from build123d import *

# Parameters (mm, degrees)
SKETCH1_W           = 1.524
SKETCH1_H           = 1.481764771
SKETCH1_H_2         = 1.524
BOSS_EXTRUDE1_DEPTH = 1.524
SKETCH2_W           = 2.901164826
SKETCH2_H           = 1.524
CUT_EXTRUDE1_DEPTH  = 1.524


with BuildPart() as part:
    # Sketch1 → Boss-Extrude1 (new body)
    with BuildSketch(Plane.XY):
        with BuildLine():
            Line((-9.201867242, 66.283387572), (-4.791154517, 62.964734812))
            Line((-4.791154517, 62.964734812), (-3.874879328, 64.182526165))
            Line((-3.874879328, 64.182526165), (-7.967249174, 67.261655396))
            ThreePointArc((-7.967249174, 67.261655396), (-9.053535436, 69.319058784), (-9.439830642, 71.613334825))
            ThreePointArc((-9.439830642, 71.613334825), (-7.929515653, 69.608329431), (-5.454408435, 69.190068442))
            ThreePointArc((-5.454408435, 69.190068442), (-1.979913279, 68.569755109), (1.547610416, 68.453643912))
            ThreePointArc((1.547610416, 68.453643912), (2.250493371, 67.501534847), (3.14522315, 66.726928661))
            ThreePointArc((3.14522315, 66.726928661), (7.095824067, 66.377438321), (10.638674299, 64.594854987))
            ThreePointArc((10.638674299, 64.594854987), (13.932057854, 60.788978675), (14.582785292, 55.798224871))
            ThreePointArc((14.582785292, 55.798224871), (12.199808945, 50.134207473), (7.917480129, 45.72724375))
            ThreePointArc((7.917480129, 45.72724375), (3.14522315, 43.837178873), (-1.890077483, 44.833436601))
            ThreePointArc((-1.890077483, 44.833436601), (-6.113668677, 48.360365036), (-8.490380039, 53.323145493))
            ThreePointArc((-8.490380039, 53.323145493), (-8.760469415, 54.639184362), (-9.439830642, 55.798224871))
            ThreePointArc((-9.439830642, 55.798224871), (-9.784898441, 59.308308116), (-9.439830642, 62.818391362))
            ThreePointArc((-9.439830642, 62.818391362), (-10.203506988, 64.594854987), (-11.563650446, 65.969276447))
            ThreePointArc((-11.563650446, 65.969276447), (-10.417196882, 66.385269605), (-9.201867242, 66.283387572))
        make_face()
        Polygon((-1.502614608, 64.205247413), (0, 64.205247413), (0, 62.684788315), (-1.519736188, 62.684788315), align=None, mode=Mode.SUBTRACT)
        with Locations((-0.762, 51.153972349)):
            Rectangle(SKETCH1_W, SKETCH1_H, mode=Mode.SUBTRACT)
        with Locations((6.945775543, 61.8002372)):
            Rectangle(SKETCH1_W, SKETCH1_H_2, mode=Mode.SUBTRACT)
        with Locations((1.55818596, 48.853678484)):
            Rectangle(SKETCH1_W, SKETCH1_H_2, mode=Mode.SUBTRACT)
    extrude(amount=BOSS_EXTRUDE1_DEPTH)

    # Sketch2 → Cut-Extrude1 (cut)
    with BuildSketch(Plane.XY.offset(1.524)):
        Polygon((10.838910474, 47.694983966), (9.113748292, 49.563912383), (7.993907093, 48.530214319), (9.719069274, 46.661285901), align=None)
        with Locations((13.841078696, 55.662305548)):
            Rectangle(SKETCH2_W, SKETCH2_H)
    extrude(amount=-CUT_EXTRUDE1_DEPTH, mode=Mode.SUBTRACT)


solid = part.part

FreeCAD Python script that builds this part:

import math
import FreeCAD as App
import Part
import Sketcher

V = App.Vector
Q = App.Units.Quantity

doc = App.newDocument("Part")
body = doc.addObject("PartDesign::Body", "Body")

# Sketch on XY plane
sketch1 = body.newObject("Sketcher::SketchObject", "Sketch")
sketch1.AttachmentSupport = (doc.getObject("XY_Plane"), [""])
sketch1.MapMode = "FlatFace"
sketch1.addGeometry(Part.LineSegment(V(-4.8, 63, 0), V(-9.2, 66.3, 0)), False)
sketch1.addGeometry(Part.ArcOfCircle(Part.Circle(V(-10, 63.6, 0), V(0, 0, 1), 2.8), math.radians(73), math.radians(122)), False)
sketch1.addGeometry(Part.ArcOfCircle(Part.Circle(V(-14.5, 61.7, 0), V(0, 0, 1), 5.2), math.radians(13), math.radians(55)), False)
sketch1.addGeometry(Part.ArcOfCircle(Part.Circle(V(8.2, 59.3, 0), V(0, 0, 1), 18), math.radians(169), math.radians(191)), False)
sketch1.addGeometry(Part.ArcOfCircle(Part.Circle(V(-12.6, 53.2, 0), V(0, 0, 1), 4.1), math.radians(2), math.radians(40)), False)
sketch1.addGeometry(Part.ArcOfCircle(Part.Circle(V(4.1, 56.3, 0), V(0, 0, 1), 12.9), math.radians(-167), math.radians(-118)), False)
sketch1.addGeometry(Part.ArcOfCircle(Part.Circle(V(2.3, 52.9, 0), V(0, 0, 1), 9.1), math.radians(-118), math.radians(-52)), False)
sketch1.addGeometry(Part.ArcOfCircle(Part.Circle(V(-1.6, 59.3, 0), V(0, 0, 1), 16.6), math.radians(-55), math.radians(-12)), False)
sketch1.addGeometry(Part.ArcOfCircle(Part.Circle(V(6, 57.2, 0), V(0, 0, 1), 8.7), math.radians(-9), math.radians(58)), False)
sketch1.addGeometry(Part.ArcOfCircle(Part.Circle(V(4.2, 56.2, 0), V(0, 0, 1), 10.6), math.radians(52), math.radians(96)), False)
sketch1.addGeometry(Part.ArcOfCircle(Part.Circle(V(6.2, 71.1, 0), V(0, 0, 1), 5.4), math.radians(-150), math.radians(-125)), False)
sketch1.addGeometry(Part.ArcOfCircle(Part.Circle(V(0.6, 93, 0), V(0, 0, 1), 24.6), math.radians(-104.24), math.radians(-87.77)), False)
sketch1.addGeometry(Part.ArcOfCircle(Part.Circle(V(-6.2, 72.5, 0), V(0, 0, 1), 3.4), math.radians(-165), math.radians(-78)), False)
sketch1.addGeometry(Part.ArcOfCircle(Part.Circle(V(-2.1, 71.7, 0), V(0, 0, 1), 7.3), math.radians(-180), math.radians(-143)), False)
sketch1.addGeometry(Part.LineSegment(V(-8, 67.3, 0), V(-3.9, 64.2, 0)), False)
sketch1.addGeometry(Part.LineSegment(V(-3.9, 64.2, 0), V(-4.8, 63, 0)), False)
sketch1.addGeometry(Part.LineSegment(V(0.8, 48.1, 0), V(0.8, 49.6, 0)), False)
sketch1.addGeometry(Part.LineSegment(V(0.8, 49.6, 0), V(2.3, 49.6, 0)), False)
sketch1.addGeometry(Part.LineSegment(V(2.3, 49.6, 0), V(2.3, 48.1, 0)), False)
sketch1.addGeometry(Part.LineSegment(V(2.3, 48.1, 0), V(0.8, 48.1, 0)), False)
sketch1.addGeometry(Part.LineSegment(V(-1.5, 50.4, 0), V(-1.5, 51.9, 0)), False)
sketch1.addGeometry(Part.LineSegment(V(-1.5, 51.9, 0), V(0, 51.9, 0)), False)
sketch1.addGeometry(Part.LineSegment(V(0, 51.9, 0), V(0, 50.4, 0)), False)
sketch1.addGeometry(Part.LineSegment(V(0, 50.4, 0), V(-1.5, 50.4, 0)), False)
sketch1.addGeometry(Part.LineSegment(V(6.2, 61, 0), V(6.2, 62.6, 0)), False)
sketch1.addGeometry(Part.LineSegment(V(6.2, 62.6, 0), V(7.7, 62.6, 0)), False)
sketch1.addGeometry(Part.LineSegment(V(7.7, 62.6, 0), V(7.7, 61, 0)), False)
sketch1.addGeometry(Part.LineSegment(V(7.7, 61, 0), V(6.2, 61, 0)), False)
sketch1.addGeometry(Part.LineSegment(V(-1.5, 64.2, 0), V(0, 64.2, 0)), False)
sketch1.addGeometry(Part.LineSegment(V(0, 64.2, 0), V(0, 62.7, 0)), False)
sketch1.addGeometry(Part.LineSegment(V(0, 62.7, 0), V(-1.5, 62.7, 0)), False)
sketch1.addGeometry(Part.LineSegment(V(-1.5, 62.7, 0), V(-1.5, 64.2, 0)), False)
sketch1.addConstraint(Sketcher.Constraint("Coincident", 0, 2, 1, 1))
sketch1.addConstraint(Sketcher.Constraint("Coincident", 1, 2, 2, 2))
sketch1.addConstraint(Sketcher.Constraint("Coincident", 2, 1, 3, 1))
sketch1.addConstraint(Sketcher.Constraint("Coincident", 3, 2, 4, 2))
sketch1.addConstraint(Sketcher.Constraint("Coincident", 4, 1, 5, 1))
sketch1.addConstraint(Sketcher.Constraint("Tangent", 5, 2, 6, 1))
sketch1.addConstraint(Sketcher.Constraint("Coincident", 6, 2, 7, 1))
sketch1.addConstraint(Sketcher.Constraint("Coincident", 7, 2, 8, 1))
sketch1.addConstraint(Sketcher.Constraint("Coincident", 8, 2, 9, 1))
sketch1.addConstraint(Sketcher.Constraint("Coincident", 9, 2, 10, 2))
sketch1.addConstraint(Sketcher.Constraint("Coincident", 10, 1, 11, 2))
sketch1.addConstraint(Sketcher.Constraint("Coincident", 11, 1, 12, 2))
sketch1.addConstraint(Sketcher.Constraint("Coincident", 12, 1, 13, 1))
sketch1.addConstraint(Sketcher.Constraint("Coincident", 13, 2, 14, 1))
sketch1.addConstraint(Sketcher.Constraint("Coincident", 14, 2, 15, 1))
sketch1.addConstraint(Sketcher.Constraint("Coincident", 15, 2, 0, 1))
sketch1.addConstraint(Sketcher.Constraint("Coincident", 16, 2, 17, 1))
sketch1.addConstraint(Sketcher.Constraint("Coincident", 17, 2, 18, 1))
sketch1.addConstraint(Sketcher.Constraint("Coincident", 18, 2, 19, 1))
sketch1.addConstraint(Sketcher.Constraint("Coincident", 19, 2, 16, 1))
sketch1.addConstraint(Sketcher.Constraint("Coincident", 20, 2, 21, 1))
sketch1.addConstraint(Sketcher.Constraint("Coincident", 21, 2, 22, 1))
sketch1.addConstraint(Sketcher.Constraint("Coincident", 22, 2, 23, 1))
sketch1.addConstraint(Sketcher.Constraint("Coincident", 23, 2, 20, 1))
sketch1.addConstraint(Sketcher.Constraint("Coincident", 24, 2, 25, 1))
sketch1.addConstraint(Sketcher.Constraint("Coincident", 25, 2, 26, 1))
sketch1.addConstraint(Sketcher.Constraint("Coincident", 26, 2, 27, 1))
sketch1.addConstraint(Sketcher.Constraint("Coincident", 27, 2, 24, 1))
sketch1.addConstraint(Sketcher.Constraint("Coincident", 28, 2, 29, 1))
sketch1.addConstraint(Sketcher.Constraint("Coincident", 29, 2, 30, 1))
sketch1.addConstraint(Sketcher.Constraint("Coincident", 30, 2, 31, 1))
sketch1.addConstraint(Sketcher.Constraint("Coincident", 31, 2, 28, 1))
sketch1.addConstraint(Sketcher.Constraint("Vertical", 16))
sketch1.addConstraint(Sketcher.Constraint("Horizontal", 17))
sketch1.addConstraint(Sketcher.Constraint("Vertical", 18))
sketch1.addConstraint(Sketcher.Constraint("Horizontal", 19))
sketch1.addConstraint(Sketcher.Constraint("Vertical", 20))
sketch1.addConstraint(Sketcher.Constraint("Horizontal", 21))
sketch1.addConstraint(Sketcher.Constraint("Vertical", 22))
sketch1.addConstraint(Sketcher.Constraint("Horizontal", 23))
sketch1.addConstraint(Sketcher.Constraint("Vertical", 24))
sketch1.addConstraint(Sketcher.Constraint("Horizontal", 25))
sketch1.addConstraint(Sketcher.Constraint("Vertical", 26))
sketch1.addConstraint(Sketcher.Constraint("Horizontal", 27))
sketch1.addConstraint(Sketcher.Constraint("Horizontal", 28))
sketch1.addConstraint(Sketcher.Constraint("Vertical", 29))
sketch1.addConstraint(Sketcher.Constraint("Horizontal", 30))
sketch1.addConstraint(Sketcher.Constraint("PointOnObject", 21, 2, -2))
sketch1.addConstraint(Sketcher.Constraint("PointOnObject", 28, 2, -2))
sketch1.addConstraint(Sketcher.Constraint("Parallel", 0, 14))
sketch1.addConstraint(Sketcher.Constraint("Perpendicular", 14, 15))
sketch1.addConstraint(Sketcher.Constraint("Horizontal", 3, 2, 7, 2))
sketch1.addConstraint(Sketcher.Constraint("Vertical", 2, 1, 3, 2))
sketch1.addConstraint(Sketcher.Constraint("Vertical", 3, 2, 12, 1))
sketch1.addConstraint(Sketcher.Constraint("Vertical", 6, 3, 17, 2))
sketch1.addConstraint(Sketcher.Constraint("Vertical", 10, 3, 24, 2))
sketch1.addConstraint(Sketcher.Constraint("Equal", 19, 21))
sketch1.addConstraint(Sketcher.Constraint("Equal", 23, 25))
sketch1.addConstraint(Sketcher.Constraint("Equal", 27, 16))
sketch1.addConstraint(Sketcher.Constraint("Equal", 18, 24))
sketch1.addConstraint(Sketcher.Constraint("DistanceX", 17, 1, 17, 2, Q("0.06 in")))
sketch1.addConstraint(Sketcher.Constraint("Distance", 15, Q("0.06 in")))
sketch1.addConstraint(Sketcher.Constraint("Radius", 2, 5.198051))
sketch1.addConstraint(Sketcher.Constraint("Radius", 3, 18.02509))
sketch1.addConstraint(Sketcher.Constraint("Radius", 4, 4.117488))
sketch1.addConstraint(Sketcher.Constraint("Radius", 7, 16.578291))
sketch1.addConstraint(Sketcher.Constraint("Radius", 10, 5.35859))
sketch1.addConstraint(Sketcher.Constraint("Radius", 13, 7.324831))
sketch1.addConstraint(Sketcher.Constraint("Radius", 1, 2.847063))
sketch1.addConstraint(Sketcher.Constraint("Radius", 5, 12.942797))
sketch1.addConstraint(Sketcher.Constraint("Radius", 6, 9.090476))
sketch1.addConstraint(Sketcher.Constraint("Radius", 8, 8.746525))
sketch1.addConstraint(Sketcher.Constraint("Radius", 9, 10.556838))
sketch1.addConstraint(Sketcher.Constraint("Radius", 11, 24.570654))
sketch1.addConstraint(Sketcher.Constraint("Radius", 12, 3.393095))
sketch1.addConstraint(Sketcher.Constraint("DistanceY", 29, 2, 29, 1, 1.520459))
sketch1.addConstraint(Sketcher.Constraint("DistanceX", 4, 3, 3, 3, 20.845001))
sketch1.addConstraint(Sketcher.Constraint("DistanceX", 5, 3, 3, 3, 4.135799))
sketch1.addConstraint(Sketcher.Constraint("DistanceY", 5, 3, 7, 3, 2.979501))
sketch1.addConstraint(Sketcher.Constraint("DistanceY", 10, 3, 11, 3, 21.864899))
sketch1.addConstraint(Sketcher.Constraint("DistanceY", 2, 3, 11, 3, 31.316101))
sketch1.addConstraint(Sketcher.Constraint("DistanceY", 1, 3, 12, 3, 8.944502))
sketch1.addConstraint(Sketcher.Constraint("DistanceX", 1, 2, 1, 3, 1.521801))
sketch1.addConstraint(Sketcher.Constraint("DistanceX", 2, 1, 7, 3, 7.814902))
sketch1.addConstraint(Sketcher.Constraint("DistanceY", 5, 2, 6, 3, 8.056702))
sketch1.addConstraint(Sketcher.Constraint("DistanceX", 10, 3, 8, 2, 4.454899))
sketch1.addConstraint(Sketcher.Constraint("DistanceX", 12, 3, 10, 1, 7.7143))
sketch1.addConstraint(Sketcher.Constraint("DistanceX", 1, 2, 13, 2, 3.596401))
sketch1.addConstraint(Sketcher.Constraint("Distance", 0, 5.519768))
sketch1.addConstraint(Sketcher.Constraint("Distance", 14, 5.121379))
sketch1.addConstraint(Sketcher.Constraint("DistanceX", 28, 1, 28, 2, 1.502615))
sketch1.addConstraint(Sketcher.Constraint("DistanceX", 30, 2, 30, 1, 1.519736))
sketch1.addConstraint(Sketcher.Constraint("DistanceY", 20, 1, 20, 2, 1.481765))
sketch1.addConstraint(Sketcher.Constraint("DistanceX", 1, 3, -1, 1, 10.04185))
sketch1.addConstraint(Sketcher.Constraint("DistanceX", -1, 1, 3, 3, 8.240191))
sketch1.addConstraint(Sketcher.Constraint("DistanceY", -1, 1, 3, 3, 59.308308))
sketch1.addConstraint(Sketcher.Constraint("DistanceY", -1, 1, 4, 3, 53.16448))
sketch1.addConstraint(Sketcher.Constraint("DistanceY", -1, 1, 5, 3, 56.30437))
sketch1.addConstraint(Sketcher.Constraint("DistanceX", -1, 1, 8, 3, 5.951041))
sketch1.addConstraint(Sketcher.Constraint("DistanceX", 12, 3, -1, 1, 6.166689))
sketch1.addConstraint(Sketcher.Constraint("DistanceY", -1, 1, 12, 3, 72.507559))
sketch1.addConstraint(Sketcher.Constraint("DistanceY", -1, 1, 13, 3, 71.66695))
sketch1.addConstraint(Sketcher.Constraint("DistanceY", -1, 1, 9, 2, 66.726929))
sketch1.addConstraint(Sketcher.Constraint("DistanceX", 11, 1, -1, 1, 5.454408))
sketch1.addConstraint(Sketcher.Constraint("DistanceY", -1, 1, 16, 2, 49.615678))
sketch1.addConstraint(Sketcher.Constraint("DistanceY", -1, 1, 22, 2, 50.41309))
sketch1.addConstraint(Sketcher.Constraint("DistanceY", -1, 1, 29, 2, 62.684788))
sketch1.addConstraint(Sketcher.Constraint("DistanceY", 3, 3, 24, 2, 3.253929))
pad1 = body.newObject("PartDesign::Pad", "Pad")
pad1.Profile = sketch1
pad1.Length = Q("0.06 in")

# Sketch on XY plane
sketch2 = body.newObject("Sketcher::SketchObject", "Sketch001")
sketch2.AttachmentSupport = (doc.getObject("XY_Plane"), [""])
sketch2.MapMode = "FlatFace"
sketch2.AttachmentOffset = App.Placement(V(0, 0, 0.06 * 25.4), App.Rotation())
sketch2.addGeometry(Part.LineSegment(V(10.8, 47.7, 0), V(9.1, 49.6, 0)), False)
sketch2.addGeometry(Part.LineSegment(V(9.1, 49.6, 0), V(8, 48.5, 0)), False)
sketch2.addGeometry(Part.LineSegment(V(8, 48.5, 0), V(9.7, 46.7, 0)), False)
sketch2.addGeometry(Part.LineSegment(V(9.7, 46.7, 0), V(10.8, 47.7, 0)), False)
sketch2.addGeometry(Part.LineSegment(V(12.4, 56.4, 0), V(12.4, 54.9, 0)), False)
sketch2.addGeometry(Part.LineSegment(V(12.4, 54.9, 0), V(15.3, 54.9, 0)), False)
sketch2.addGeometry(Part.LineSegment(V(15.3, 54.9, 0), V(15.3, 56.4, 0)), False)
sketch2.addGeometry(Part.LineSegment(V(15.3, 56.4, 0), V(12.4, 56.4, 0)), False)
sketch2.addConstraint(Sketcher.Constraint("Coincident", 0, 2, 1, 1))
sketch2.addConstraint(Sketcher.Constraint("Coincident", 1, 2, 2, 1))
sketch2.addConstraint(Sketcher.Constraint("Coincident", 2, 2, 3, 1))
sketch2.addConstraint(Sketcher.Constraint("Coincident", 3, 2, 0, 1))
sketch2.addConstraint(Sketcher.Constraint("Coincident", 4, 2, 5, 1))
sketch2.addConstraint(Sketcher.Constraint("Coincident", 5, 2, 6, 1))
sketch2.addConstraint(Sketcher.Constraint("Coincident", 6, 2, 7, 1))
sketch2.addConstraint(Sketcher.Constraint("Coincident", 7, 2, 4, 1))
sketch2.addConstraint(Sketcher.Constraint("Vertical", 4))
sketch2.addConstraint(Sketcher.Constraint("Horizontal", 5))
sketch2.addConstraint(Sketcher.Constraint("Vertical", 6))
sketch2.addConstraint(Sketcher.Constraint("Horizontal", 7))
sketch2.addConstraint(Sketcher.Constraint("Perpendicular", 0, 1))
sketch2.addConstraint(Sketcher.Constraint("Perpendicular", 1, 2))
sketch2.addConstraint(Sketcher.Constraint("Perpendicular", 2, 3))
sketch2.addConstraint(Sketcher.Constraint("DistanceY", 4, 2, 4, 1, Q("0.06 in")))
sketch2.addConstraint(Sketcher.Constraint("Distance", 1, Q("0.06 in")))
sketch2.addConstraint(Sketcher.Constraint("DistanceY", 1, 2, 0, 2, 1.033698))
sketch2.addConstraint(Sketcher.Constraint("Distance", 0, 2.543438))
sketch2.addConstraint(Sketcher.Constraint("DistanceX", 5, 1, 5, 2, 2.901165))
sketch2.addConstraint(Sketcher.Constraint("DistanceX", -1, 1, 0, 2, 9.113748))
sketch2.addConstraint(Sketcher.Constraint("DistanceX", -1, 1, 5, 2, 15.291661))
sketch2.addConstraint(Sketcher.Constraint("DistanceY", 3, 2, 4, 2, 7.205322))
sketch2.addConstraint(Sketcher.Constraint("DistanceY", -1, 1, 0, 2, 49.563912))
pocket1 = body.newObject("PartDesign::Pocket", "Pocket")
pocket1.Profile = sketch2
pocket1.Length = Q("0.06 in")

doc.recompute()
